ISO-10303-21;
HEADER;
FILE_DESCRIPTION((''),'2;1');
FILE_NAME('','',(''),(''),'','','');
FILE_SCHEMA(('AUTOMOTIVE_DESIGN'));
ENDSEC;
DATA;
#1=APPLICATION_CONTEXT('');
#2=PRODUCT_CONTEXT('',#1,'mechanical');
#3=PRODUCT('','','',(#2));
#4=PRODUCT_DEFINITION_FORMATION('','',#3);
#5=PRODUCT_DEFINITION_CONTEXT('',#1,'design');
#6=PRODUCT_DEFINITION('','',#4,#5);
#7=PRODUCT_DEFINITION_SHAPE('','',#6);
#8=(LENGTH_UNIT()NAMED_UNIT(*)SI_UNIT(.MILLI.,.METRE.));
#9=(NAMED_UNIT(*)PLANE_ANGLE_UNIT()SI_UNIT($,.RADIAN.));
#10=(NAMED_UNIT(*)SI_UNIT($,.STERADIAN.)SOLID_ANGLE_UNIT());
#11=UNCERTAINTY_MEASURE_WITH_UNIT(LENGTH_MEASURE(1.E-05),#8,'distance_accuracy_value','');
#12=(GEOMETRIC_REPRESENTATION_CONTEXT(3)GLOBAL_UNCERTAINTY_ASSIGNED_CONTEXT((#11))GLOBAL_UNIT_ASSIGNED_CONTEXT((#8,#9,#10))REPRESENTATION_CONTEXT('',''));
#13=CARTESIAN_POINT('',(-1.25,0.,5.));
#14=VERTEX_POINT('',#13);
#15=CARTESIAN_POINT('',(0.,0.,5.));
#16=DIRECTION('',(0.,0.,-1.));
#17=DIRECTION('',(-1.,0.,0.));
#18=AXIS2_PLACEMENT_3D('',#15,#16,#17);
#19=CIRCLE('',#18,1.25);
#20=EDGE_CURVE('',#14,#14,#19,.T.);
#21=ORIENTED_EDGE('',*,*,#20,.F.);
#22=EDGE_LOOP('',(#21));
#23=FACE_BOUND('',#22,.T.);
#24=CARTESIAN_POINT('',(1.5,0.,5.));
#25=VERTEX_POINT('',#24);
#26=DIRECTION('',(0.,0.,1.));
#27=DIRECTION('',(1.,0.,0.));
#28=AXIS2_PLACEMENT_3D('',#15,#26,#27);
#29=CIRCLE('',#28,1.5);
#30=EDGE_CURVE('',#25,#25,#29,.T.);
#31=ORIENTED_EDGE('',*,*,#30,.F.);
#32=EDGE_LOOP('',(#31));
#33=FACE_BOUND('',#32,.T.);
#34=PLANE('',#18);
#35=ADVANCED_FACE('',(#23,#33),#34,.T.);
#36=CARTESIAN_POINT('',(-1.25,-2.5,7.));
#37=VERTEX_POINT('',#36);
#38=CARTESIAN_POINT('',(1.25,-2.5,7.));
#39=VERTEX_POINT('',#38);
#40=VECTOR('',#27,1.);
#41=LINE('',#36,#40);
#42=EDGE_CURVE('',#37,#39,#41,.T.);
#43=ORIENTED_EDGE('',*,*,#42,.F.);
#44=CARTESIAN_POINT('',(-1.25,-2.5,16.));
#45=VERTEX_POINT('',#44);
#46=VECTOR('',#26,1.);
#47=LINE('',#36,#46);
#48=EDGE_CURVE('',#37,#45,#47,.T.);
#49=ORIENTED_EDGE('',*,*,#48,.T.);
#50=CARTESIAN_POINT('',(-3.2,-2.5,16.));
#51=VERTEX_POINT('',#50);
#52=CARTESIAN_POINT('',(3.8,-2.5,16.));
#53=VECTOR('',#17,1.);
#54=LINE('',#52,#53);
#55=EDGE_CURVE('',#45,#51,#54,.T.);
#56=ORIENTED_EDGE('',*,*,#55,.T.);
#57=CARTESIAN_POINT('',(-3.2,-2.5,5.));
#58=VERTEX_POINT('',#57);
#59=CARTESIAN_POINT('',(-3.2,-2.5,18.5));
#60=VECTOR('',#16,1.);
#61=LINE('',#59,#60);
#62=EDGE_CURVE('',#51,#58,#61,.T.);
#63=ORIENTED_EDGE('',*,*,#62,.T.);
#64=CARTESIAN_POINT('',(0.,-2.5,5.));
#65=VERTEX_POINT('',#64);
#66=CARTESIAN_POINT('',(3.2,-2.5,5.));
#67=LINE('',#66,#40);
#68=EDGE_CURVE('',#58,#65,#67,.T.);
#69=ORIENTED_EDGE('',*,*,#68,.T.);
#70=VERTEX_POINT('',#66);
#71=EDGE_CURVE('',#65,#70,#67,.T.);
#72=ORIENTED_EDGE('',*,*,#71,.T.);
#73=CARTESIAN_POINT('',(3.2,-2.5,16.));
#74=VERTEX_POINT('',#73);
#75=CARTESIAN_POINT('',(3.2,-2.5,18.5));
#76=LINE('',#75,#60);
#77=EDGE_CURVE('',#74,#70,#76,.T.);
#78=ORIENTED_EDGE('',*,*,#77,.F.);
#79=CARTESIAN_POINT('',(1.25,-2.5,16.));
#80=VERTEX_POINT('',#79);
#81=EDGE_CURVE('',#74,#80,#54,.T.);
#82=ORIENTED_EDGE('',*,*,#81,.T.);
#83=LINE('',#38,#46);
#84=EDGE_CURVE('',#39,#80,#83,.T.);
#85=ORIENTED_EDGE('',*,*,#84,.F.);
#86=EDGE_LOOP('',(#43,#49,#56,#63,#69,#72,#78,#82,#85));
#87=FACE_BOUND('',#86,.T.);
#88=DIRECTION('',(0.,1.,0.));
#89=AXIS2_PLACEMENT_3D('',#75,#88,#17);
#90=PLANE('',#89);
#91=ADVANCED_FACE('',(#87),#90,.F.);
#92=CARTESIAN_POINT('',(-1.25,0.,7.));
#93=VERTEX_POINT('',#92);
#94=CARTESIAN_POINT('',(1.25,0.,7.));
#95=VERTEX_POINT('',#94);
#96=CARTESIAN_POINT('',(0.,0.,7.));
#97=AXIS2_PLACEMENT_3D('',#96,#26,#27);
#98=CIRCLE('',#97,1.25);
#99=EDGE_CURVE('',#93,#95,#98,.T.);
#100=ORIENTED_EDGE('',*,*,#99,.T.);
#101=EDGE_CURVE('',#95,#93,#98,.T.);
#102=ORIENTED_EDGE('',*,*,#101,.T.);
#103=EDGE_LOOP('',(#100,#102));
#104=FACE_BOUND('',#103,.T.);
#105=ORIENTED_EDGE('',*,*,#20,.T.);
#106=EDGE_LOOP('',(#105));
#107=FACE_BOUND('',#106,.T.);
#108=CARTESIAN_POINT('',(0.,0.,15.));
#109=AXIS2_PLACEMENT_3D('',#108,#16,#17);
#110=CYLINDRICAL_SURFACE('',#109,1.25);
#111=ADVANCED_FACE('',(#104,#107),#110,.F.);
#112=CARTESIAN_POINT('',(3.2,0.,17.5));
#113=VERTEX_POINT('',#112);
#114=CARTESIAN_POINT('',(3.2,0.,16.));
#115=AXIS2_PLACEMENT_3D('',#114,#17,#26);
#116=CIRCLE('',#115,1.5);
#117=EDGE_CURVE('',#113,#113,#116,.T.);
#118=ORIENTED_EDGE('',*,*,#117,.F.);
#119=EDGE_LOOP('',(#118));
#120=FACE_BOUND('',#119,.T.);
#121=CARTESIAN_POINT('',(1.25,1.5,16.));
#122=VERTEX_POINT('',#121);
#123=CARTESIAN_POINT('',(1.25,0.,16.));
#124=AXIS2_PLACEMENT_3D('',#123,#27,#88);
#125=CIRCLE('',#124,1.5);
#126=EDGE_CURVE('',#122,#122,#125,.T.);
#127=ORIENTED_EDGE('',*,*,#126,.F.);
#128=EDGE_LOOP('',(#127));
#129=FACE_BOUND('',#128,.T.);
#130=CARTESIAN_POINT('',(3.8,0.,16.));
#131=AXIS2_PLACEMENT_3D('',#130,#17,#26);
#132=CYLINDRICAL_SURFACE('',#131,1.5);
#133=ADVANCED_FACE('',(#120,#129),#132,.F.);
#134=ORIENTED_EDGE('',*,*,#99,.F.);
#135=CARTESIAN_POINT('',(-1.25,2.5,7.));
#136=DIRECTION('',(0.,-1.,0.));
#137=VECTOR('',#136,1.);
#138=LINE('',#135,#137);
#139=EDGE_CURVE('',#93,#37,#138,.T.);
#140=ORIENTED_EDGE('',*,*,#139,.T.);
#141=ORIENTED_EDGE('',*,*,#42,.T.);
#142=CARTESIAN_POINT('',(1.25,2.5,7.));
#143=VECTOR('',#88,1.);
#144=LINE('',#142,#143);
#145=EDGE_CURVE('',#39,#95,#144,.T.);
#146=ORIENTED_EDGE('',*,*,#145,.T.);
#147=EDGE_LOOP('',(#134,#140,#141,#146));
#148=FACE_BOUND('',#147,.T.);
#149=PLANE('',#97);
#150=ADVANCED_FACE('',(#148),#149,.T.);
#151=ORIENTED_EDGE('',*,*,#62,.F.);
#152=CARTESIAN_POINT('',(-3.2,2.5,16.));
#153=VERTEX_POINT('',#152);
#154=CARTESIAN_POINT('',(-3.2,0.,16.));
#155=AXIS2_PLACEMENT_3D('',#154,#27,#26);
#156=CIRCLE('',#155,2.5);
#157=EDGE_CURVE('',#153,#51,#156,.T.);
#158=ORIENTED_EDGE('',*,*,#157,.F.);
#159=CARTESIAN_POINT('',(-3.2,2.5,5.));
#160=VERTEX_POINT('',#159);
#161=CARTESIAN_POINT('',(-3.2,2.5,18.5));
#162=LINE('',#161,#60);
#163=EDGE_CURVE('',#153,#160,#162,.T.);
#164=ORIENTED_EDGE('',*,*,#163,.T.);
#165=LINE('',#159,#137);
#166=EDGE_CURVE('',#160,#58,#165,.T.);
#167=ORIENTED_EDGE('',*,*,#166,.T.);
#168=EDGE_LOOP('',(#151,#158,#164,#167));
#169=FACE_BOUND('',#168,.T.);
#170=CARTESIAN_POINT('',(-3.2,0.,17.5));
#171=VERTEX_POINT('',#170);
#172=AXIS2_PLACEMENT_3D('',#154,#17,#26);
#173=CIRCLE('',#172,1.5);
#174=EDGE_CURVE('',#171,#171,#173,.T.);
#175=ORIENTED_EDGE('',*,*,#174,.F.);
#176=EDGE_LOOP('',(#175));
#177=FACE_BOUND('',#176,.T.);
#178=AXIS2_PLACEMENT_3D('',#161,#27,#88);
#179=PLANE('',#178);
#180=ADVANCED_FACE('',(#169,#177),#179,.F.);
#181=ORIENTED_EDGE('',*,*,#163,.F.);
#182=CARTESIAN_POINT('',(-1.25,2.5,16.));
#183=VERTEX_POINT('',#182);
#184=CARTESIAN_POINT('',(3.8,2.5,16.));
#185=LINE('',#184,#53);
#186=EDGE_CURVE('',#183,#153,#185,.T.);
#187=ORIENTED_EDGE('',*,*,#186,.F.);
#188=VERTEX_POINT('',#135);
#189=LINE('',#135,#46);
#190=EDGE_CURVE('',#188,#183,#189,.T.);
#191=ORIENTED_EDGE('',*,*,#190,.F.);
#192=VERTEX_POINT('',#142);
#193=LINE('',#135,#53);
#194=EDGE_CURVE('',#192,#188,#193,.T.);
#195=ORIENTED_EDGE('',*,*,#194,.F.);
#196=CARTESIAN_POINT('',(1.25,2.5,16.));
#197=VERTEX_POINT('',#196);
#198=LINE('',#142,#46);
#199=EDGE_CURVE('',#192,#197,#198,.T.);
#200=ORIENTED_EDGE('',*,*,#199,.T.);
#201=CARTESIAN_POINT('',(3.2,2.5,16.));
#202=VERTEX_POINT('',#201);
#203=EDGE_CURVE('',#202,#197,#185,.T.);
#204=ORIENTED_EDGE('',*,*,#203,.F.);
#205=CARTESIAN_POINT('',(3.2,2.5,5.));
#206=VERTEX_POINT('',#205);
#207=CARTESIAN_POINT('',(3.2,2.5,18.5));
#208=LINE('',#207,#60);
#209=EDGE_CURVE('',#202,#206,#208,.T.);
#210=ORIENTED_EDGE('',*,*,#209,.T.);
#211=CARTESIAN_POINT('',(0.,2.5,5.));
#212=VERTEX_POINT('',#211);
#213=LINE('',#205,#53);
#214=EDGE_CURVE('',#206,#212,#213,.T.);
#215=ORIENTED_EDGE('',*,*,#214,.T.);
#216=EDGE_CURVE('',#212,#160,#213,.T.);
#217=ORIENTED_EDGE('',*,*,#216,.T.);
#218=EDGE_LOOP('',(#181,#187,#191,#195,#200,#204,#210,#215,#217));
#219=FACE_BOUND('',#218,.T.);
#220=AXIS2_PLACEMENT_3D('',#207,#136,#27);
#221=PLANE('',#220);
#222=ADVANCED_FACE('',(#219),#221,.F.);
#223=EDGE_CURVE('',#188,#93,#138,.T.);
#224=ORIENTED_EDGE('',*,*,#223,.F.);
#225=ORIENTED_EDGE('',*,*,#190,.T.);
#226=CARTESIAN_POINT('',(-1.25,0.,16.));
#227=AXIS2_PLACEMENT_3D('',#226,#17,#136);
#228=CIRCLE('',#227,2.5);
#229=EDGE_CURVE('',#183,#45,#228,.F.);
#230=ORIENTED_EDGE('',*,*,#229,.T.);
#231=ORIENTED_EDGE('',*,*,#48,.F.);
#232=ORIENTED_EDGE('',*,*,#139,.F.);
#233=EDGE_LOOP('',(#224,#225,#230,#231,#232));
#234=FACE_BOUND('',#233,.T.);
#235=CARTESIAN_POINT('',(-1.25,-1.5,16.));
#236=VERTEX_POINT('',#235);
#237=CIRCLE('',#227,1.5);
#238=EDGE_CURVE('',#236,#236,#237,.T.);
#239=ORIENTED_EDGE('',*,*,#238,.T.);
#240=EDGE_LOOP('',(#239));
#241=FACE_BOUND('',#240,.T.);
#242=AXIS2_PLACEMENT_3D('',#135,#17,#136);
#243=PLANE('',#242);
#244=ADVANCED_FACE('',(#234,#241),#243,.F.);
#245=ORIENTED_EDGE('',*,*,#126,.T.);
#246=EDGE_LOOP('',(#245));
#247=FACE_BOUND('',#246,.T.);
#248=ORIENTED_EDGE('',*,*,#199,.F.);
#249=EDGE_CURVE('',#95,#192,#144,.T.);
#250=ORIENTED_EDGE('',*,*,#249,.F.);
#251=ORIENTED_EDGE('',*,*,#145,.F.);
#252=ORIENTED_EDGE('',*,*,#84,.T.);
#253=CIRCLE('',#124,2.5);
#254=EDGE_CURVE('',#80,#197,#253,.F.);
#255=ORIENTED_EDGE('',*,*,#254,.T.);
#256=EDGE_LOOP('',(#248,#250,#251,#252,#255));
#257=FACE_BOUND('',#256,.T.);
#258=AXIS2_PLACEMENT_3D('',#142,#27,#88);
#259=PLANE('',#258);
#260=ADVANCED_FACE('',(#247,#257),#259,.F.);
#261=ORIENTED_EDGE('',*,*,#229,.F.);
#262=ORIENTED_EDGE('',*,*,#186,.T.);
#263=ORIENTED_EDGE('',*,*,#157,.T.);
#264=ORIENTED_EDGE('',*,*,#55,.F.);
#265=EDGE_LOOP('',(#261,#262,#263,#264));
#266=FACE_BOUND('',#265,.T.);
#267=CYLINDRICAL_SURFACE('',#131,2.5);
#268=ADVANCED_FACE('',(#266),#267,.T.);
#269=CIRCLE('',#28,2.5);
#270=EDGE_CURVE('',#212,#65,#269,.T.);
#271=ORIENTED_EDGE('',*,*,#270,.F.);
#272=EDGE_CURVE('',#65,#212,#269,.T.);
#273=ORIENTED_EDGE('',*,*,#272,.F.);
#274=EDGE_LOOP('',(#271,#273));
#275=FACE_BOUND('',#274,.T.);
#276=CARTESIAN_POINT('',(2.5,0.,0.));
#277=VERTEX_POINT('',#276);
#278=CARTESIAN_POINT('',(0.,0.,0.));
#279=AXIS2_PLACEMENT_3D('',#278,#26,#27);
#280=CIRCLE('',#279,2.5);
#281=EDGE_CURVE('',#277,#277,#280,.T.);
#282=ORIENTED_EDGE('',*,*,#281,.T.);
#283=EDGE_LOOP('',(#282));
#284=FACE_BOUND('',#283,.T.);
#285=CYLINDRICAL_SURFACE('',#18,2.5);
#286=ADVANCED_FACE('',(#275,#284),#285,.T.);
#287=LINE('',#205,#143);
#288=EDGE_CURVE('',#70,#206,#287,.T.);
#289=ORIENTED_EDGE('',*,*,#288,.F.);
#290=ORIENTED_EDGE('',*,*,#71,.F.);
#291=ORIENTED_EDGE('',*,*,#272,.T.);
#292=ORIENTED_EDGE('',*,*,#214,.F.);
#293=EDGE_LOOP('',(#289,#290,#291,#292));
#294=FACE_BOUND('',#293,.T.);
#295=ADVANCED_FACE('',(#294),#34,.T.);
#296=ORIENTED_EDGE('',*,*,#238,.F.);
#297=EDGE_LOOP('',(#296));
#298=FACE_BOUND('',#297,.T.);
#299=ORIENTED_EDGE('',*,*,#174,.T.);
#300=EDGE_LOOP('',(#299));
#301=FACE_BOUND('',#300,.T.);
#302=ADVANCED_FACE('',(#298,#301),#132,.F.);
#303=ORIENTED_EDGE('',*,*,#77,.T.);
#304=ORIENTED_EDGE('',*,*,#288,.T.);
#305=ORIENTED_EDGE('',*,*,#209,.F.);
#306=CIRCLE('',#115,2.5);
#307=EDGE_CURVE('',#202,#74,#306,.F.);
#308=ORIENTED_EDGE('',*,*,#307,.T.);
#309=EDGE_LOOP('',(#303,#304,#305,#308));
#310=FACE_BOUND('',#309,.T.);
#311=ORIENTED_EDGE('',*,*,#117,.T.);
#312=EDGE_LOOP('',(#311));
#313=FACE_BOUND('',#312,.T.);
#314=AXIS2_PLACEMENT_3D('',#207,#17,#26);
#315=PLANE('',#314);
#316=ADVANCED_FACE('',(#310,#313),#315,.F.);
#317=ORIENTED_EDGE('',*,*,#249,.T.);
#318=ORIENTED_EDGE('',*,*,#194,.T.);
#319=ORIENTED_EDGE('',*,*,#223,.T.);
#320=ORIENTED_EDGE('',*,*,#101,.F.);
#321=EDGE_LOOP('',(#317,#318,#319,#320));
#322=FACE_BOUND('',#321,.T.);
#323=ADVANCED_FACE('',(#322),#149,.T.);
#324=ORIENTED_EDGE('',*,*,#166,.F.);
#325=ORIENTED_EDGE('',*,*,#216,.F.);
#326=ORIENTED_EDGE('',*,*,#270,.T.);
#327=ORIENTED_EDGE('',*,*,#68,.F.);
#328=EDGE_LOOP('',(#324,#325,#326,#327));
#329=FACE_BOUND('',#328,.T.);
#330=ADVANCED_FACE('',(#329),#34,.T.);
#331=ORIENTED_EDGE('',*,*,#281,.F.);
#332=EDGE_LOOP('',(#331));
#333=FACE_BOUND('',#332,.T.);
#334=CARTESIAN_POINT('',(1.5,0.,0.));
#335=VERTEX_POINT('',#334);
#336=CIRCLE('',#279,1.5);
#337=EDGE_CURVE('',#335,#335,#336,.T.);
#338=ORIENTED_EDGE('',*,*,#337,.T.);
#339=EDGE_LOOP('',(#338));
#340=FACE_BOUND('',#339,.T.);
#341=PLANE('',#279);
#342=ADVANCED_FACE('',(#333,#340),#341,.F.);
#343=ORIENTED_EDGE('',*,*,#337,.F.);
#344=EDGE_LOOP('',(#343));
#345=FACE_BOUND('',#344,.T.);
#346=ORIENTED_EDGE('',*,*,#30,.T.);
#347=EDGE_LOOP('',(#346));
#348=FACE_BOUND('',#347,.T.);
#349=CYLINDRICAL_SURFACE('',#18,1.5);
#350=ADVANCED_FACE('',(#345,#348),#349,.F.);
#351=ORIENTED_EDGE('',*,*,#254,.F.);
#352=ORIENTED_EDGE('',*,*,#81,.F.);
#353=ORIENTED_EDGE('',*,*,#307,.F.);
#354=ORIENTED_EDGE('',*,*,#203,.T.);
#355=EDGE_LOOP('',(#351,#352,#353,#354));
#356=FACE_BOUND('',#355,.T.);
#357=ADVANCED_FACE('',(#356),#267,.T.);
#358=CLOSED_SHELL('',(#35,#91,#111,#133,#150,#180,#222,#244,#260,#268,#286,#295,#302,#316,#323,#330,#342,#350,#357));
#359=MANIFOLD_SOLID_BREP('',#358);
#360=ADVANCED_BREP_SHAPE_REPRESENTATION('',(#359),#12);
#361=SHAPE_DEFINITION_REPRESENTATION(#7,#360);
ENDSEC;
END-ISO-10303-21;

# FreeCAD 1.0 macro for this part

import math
import FreeCAD as App
import Part
import Sketcher

V = App.Vector

doc = App.newDocument("Part")
body = doc.addObject("PartDesign::Body", "Body")

sketch1 = body.newObject("Sketcher::SketchObject", "Sketch")
sketch1.AttachmentSupport = (doc.getObject("XY_Plane"), [""])
sketch1.MapMode = "FlatFace"
sketch1.addGeometry([
    Part.Circle(V(0, 0, 0), V(0, 0, 1), 2.5),
    Part.Circle(V(0, 0, 0), V(0, 0, 1), 1.5),
], False)
sketch1.addConstraint([
    Sketcher.Constraint("Coincident", 0, 3, -1, 1),
    Sketcher.Constraint("Coincident", 1, 3, -1, 1),
    Sketcher.Constraint("Diameter", 0, 5.0),
    Sketcher.Constraint("Diameter", 1, 3.0),
])
pad1 = body.newObject("PartDesign::Pad", "Pad")
pad1.Profile = sketch1
pad1.Length = 5

sketch2 = body.newObject("Sketcher::SketchObject", "Sketch001")
sketch2.AttachmentSupport = (doc.getObject("XY_Plane"), [""])
sketch2.MapMode = "FlatFace"
sketch2.AttachmentOffset = App.Placement(V(0, 0, 5), App.Rotation())
sketch2.addGeometry([
    Part.LineSegment(V(-3, 2, 0), V(-3, -2, 0)),
    Part.LineSegment(V(-3, -2, 0), V(3, -2, 0)),
    Part.LineSegment(V(3, -2, 0), V(3, 2, 0)),
    Part.LineSegment(V(3, 2, 0), V(-3, 2, 0)),
], False)
sketch2.addConstraint([
    Sketcher.Constraint("Coincident", 0, 2, 1, 1),
    Sketcher.Constraint("Coincident", 1, 2, 2, 1),
    Sketcher.Constraint("Coincident", 2, 2, 3, 1),
    Sketcher.Constraint("Coincident", 3, 2, 0, 1),
    Sketcher.Constraint("Vertical", 0),
    Sketcher.Constraint("Horizontal", 1),
    Sketcher.Constraint("Vertical", 2),
    Sketcher.Constraint("Horizontal", 3),
    Sketcher.Constraint("Symmetric", 0, 2, 2, 2, -1, 1),
    Sketcher.Constraint("DistanceY", 0, 2, 0, 1, 5.0),
    Sketcher.Constraint("DistanceX", 1, 1, 1, 2, 6.4),
])
pad2 = body.newObject("PartDesign::Pad", "Pad001")
pad2.Profile = sketch2
pad2.Length = 13.5

sketch3 = body.newObject("Sketcher::SketchObject", "Sketch002")
sketch3.AttachmentSupport = (doc.getObject("XY_Plane"), [""])
sketch3.MapMode = "FlatFace"
sketch3.AttachmentOffset = App.Placement(V(0, 0, 18.5), App.Rotation())
sketch3.addGeometry([
    Part.LineSegment(V(-1.2, 2.5, 0), V(-1.2, -2.5, 0)),
    Part.LineSegment(V(-1.2, -2.5, 0), V(1.2, -2.5, 0)),
    Part.LineSegment(V(1.2, -2.5, 0), V(1.2, 2.5, 0)),
    Part.LineSegment(V(1.2, 2.5, 0), V(-1.2, 2.5, 0)),
], False)
sketch3.addConstraint([
    Sketcher.Constraint("Coincident", 0, 2, 1, 1),
    Sketcher.Constraint("Coincident", 1, 2, 2, 1),
    Sketcher.Constraint("Coincident", 2, 2, 3, 1),
    Sketcher.Constraint("Coincident", 3, 2, 0, 1),
    Sketcher.Constraint("Vertical", 0),
    Sketcher.Constraint("Horizontal", 1),
    Sketcher.Constraint("Vertical", 2),
    Sketcher.Constraint("Horizontal", 3),
    Sketcher.Constraint("Symmetric", 0, 2, 2, 2, -1, 1),
    Sketcher.Constraint("DistanceY", 0, 2, 0, 1, 5.0),
    Sketcher.Constraint("DistanceX", 1, 1, 1, 2, 2.5),
])
pocket1 = body.newObject("PartDesign::Pocket", "Pocket")
pocket1.Profile = sketch3
pocket1.Length = 11.5

sketch4 = body.newObject("Sketcher::SketchObject", "Sketch003")
sketch4.AttachmentSupport = (doc.getObject("YZ_Plane"), [""])
sketch4.MapMode = "FlatFace"
sketch4.AttachmentOffset = App.Placement(V(0, 0, -3.2), App.Rotation())
sketch4.addGeometry([
    Part.Circle(V(0, 16, 0), V(0, 0, 1), 1.5),
    Part.LineSegment(V(2.5, 20, 0), V(2.5, 16, 0)),
    Part.ArcOfCircle(Part.Circle(V(0, 16, 0), V(0, 0, 1), 2.5), math.radians(0), math.radians(180)),
    Part.LineSegment(V(-2.5, 16, 0), V(-2.5, 20, 0)),
    Part.LineSegment(V(-2.5, 20, 0), V(2.5, 20, 0)),
], False)
sketch4.addConstraint([
    Sketcher.Constraint("Tangent", 1, 2, 2, 1),
    Sketcher.Constraint("Tangent", 2, 2, 3, 1),
    Sketcher.Constraint("Coincident", 3, 2, 4, 1),
    Sketcher.Constraint("Coincident", 4, 2, 1, 1),
    Sketcher.Constraint("Vertical", 1),
    Sketcher.Constraint("Vertical", 3),
    Sketcher.Constraint("Horizontal", 4),
    Sketcher.Constraint("Coincident", 2, 3, 0, 3),
    Sketcher.Constraint("PointOnObject", 0, 3, -2),
    Sketcher.Constraint("Diameter", 0, 3.0),
    Sketcher.Constraint("Radius", 2, 2.5),
    Sketcher.Constraint("DistanceY", 1, 2, 1, 1, 4.0),
    Sketcher.Constraint("DistanceY", -1, 1, 0, 3, 16.0),
])
pocket2 = body.newObject("PartDesign::Pocket", "Pocket001")
pocket2.Profile = sketch4
pocket2.Length = 7
pocket2.Reversed = True

sketch5 = body.newObject("Sketcher::SketchObject", "Sketch004")
sketch5.AttachmentSupport = (doc.getObject("XY_Plane"), [""])
sketch5.MapMode = "FlatFace"
sketch5.AttachmentOffset = App.Placement(V(0, 0, 5), App.Rotation())
sketch5.addGeometry(Part.Circle(V(0, 0, 0), V(0, 0, 1), 1.2), False)
sketch5.addConstraint([
    Sketcher.Constraint("Coincident", 0, 3, -1, 1),
    Sketcher.Constraint("Diameter", 0, 2.5),
])
pocket3 = body.newObject("PartDesign::Pocket", "Pocket002")
pocket3.Profile = sketch5
pocket3.Length = 10
pocket3.Reversed = True

doc.recompute()
